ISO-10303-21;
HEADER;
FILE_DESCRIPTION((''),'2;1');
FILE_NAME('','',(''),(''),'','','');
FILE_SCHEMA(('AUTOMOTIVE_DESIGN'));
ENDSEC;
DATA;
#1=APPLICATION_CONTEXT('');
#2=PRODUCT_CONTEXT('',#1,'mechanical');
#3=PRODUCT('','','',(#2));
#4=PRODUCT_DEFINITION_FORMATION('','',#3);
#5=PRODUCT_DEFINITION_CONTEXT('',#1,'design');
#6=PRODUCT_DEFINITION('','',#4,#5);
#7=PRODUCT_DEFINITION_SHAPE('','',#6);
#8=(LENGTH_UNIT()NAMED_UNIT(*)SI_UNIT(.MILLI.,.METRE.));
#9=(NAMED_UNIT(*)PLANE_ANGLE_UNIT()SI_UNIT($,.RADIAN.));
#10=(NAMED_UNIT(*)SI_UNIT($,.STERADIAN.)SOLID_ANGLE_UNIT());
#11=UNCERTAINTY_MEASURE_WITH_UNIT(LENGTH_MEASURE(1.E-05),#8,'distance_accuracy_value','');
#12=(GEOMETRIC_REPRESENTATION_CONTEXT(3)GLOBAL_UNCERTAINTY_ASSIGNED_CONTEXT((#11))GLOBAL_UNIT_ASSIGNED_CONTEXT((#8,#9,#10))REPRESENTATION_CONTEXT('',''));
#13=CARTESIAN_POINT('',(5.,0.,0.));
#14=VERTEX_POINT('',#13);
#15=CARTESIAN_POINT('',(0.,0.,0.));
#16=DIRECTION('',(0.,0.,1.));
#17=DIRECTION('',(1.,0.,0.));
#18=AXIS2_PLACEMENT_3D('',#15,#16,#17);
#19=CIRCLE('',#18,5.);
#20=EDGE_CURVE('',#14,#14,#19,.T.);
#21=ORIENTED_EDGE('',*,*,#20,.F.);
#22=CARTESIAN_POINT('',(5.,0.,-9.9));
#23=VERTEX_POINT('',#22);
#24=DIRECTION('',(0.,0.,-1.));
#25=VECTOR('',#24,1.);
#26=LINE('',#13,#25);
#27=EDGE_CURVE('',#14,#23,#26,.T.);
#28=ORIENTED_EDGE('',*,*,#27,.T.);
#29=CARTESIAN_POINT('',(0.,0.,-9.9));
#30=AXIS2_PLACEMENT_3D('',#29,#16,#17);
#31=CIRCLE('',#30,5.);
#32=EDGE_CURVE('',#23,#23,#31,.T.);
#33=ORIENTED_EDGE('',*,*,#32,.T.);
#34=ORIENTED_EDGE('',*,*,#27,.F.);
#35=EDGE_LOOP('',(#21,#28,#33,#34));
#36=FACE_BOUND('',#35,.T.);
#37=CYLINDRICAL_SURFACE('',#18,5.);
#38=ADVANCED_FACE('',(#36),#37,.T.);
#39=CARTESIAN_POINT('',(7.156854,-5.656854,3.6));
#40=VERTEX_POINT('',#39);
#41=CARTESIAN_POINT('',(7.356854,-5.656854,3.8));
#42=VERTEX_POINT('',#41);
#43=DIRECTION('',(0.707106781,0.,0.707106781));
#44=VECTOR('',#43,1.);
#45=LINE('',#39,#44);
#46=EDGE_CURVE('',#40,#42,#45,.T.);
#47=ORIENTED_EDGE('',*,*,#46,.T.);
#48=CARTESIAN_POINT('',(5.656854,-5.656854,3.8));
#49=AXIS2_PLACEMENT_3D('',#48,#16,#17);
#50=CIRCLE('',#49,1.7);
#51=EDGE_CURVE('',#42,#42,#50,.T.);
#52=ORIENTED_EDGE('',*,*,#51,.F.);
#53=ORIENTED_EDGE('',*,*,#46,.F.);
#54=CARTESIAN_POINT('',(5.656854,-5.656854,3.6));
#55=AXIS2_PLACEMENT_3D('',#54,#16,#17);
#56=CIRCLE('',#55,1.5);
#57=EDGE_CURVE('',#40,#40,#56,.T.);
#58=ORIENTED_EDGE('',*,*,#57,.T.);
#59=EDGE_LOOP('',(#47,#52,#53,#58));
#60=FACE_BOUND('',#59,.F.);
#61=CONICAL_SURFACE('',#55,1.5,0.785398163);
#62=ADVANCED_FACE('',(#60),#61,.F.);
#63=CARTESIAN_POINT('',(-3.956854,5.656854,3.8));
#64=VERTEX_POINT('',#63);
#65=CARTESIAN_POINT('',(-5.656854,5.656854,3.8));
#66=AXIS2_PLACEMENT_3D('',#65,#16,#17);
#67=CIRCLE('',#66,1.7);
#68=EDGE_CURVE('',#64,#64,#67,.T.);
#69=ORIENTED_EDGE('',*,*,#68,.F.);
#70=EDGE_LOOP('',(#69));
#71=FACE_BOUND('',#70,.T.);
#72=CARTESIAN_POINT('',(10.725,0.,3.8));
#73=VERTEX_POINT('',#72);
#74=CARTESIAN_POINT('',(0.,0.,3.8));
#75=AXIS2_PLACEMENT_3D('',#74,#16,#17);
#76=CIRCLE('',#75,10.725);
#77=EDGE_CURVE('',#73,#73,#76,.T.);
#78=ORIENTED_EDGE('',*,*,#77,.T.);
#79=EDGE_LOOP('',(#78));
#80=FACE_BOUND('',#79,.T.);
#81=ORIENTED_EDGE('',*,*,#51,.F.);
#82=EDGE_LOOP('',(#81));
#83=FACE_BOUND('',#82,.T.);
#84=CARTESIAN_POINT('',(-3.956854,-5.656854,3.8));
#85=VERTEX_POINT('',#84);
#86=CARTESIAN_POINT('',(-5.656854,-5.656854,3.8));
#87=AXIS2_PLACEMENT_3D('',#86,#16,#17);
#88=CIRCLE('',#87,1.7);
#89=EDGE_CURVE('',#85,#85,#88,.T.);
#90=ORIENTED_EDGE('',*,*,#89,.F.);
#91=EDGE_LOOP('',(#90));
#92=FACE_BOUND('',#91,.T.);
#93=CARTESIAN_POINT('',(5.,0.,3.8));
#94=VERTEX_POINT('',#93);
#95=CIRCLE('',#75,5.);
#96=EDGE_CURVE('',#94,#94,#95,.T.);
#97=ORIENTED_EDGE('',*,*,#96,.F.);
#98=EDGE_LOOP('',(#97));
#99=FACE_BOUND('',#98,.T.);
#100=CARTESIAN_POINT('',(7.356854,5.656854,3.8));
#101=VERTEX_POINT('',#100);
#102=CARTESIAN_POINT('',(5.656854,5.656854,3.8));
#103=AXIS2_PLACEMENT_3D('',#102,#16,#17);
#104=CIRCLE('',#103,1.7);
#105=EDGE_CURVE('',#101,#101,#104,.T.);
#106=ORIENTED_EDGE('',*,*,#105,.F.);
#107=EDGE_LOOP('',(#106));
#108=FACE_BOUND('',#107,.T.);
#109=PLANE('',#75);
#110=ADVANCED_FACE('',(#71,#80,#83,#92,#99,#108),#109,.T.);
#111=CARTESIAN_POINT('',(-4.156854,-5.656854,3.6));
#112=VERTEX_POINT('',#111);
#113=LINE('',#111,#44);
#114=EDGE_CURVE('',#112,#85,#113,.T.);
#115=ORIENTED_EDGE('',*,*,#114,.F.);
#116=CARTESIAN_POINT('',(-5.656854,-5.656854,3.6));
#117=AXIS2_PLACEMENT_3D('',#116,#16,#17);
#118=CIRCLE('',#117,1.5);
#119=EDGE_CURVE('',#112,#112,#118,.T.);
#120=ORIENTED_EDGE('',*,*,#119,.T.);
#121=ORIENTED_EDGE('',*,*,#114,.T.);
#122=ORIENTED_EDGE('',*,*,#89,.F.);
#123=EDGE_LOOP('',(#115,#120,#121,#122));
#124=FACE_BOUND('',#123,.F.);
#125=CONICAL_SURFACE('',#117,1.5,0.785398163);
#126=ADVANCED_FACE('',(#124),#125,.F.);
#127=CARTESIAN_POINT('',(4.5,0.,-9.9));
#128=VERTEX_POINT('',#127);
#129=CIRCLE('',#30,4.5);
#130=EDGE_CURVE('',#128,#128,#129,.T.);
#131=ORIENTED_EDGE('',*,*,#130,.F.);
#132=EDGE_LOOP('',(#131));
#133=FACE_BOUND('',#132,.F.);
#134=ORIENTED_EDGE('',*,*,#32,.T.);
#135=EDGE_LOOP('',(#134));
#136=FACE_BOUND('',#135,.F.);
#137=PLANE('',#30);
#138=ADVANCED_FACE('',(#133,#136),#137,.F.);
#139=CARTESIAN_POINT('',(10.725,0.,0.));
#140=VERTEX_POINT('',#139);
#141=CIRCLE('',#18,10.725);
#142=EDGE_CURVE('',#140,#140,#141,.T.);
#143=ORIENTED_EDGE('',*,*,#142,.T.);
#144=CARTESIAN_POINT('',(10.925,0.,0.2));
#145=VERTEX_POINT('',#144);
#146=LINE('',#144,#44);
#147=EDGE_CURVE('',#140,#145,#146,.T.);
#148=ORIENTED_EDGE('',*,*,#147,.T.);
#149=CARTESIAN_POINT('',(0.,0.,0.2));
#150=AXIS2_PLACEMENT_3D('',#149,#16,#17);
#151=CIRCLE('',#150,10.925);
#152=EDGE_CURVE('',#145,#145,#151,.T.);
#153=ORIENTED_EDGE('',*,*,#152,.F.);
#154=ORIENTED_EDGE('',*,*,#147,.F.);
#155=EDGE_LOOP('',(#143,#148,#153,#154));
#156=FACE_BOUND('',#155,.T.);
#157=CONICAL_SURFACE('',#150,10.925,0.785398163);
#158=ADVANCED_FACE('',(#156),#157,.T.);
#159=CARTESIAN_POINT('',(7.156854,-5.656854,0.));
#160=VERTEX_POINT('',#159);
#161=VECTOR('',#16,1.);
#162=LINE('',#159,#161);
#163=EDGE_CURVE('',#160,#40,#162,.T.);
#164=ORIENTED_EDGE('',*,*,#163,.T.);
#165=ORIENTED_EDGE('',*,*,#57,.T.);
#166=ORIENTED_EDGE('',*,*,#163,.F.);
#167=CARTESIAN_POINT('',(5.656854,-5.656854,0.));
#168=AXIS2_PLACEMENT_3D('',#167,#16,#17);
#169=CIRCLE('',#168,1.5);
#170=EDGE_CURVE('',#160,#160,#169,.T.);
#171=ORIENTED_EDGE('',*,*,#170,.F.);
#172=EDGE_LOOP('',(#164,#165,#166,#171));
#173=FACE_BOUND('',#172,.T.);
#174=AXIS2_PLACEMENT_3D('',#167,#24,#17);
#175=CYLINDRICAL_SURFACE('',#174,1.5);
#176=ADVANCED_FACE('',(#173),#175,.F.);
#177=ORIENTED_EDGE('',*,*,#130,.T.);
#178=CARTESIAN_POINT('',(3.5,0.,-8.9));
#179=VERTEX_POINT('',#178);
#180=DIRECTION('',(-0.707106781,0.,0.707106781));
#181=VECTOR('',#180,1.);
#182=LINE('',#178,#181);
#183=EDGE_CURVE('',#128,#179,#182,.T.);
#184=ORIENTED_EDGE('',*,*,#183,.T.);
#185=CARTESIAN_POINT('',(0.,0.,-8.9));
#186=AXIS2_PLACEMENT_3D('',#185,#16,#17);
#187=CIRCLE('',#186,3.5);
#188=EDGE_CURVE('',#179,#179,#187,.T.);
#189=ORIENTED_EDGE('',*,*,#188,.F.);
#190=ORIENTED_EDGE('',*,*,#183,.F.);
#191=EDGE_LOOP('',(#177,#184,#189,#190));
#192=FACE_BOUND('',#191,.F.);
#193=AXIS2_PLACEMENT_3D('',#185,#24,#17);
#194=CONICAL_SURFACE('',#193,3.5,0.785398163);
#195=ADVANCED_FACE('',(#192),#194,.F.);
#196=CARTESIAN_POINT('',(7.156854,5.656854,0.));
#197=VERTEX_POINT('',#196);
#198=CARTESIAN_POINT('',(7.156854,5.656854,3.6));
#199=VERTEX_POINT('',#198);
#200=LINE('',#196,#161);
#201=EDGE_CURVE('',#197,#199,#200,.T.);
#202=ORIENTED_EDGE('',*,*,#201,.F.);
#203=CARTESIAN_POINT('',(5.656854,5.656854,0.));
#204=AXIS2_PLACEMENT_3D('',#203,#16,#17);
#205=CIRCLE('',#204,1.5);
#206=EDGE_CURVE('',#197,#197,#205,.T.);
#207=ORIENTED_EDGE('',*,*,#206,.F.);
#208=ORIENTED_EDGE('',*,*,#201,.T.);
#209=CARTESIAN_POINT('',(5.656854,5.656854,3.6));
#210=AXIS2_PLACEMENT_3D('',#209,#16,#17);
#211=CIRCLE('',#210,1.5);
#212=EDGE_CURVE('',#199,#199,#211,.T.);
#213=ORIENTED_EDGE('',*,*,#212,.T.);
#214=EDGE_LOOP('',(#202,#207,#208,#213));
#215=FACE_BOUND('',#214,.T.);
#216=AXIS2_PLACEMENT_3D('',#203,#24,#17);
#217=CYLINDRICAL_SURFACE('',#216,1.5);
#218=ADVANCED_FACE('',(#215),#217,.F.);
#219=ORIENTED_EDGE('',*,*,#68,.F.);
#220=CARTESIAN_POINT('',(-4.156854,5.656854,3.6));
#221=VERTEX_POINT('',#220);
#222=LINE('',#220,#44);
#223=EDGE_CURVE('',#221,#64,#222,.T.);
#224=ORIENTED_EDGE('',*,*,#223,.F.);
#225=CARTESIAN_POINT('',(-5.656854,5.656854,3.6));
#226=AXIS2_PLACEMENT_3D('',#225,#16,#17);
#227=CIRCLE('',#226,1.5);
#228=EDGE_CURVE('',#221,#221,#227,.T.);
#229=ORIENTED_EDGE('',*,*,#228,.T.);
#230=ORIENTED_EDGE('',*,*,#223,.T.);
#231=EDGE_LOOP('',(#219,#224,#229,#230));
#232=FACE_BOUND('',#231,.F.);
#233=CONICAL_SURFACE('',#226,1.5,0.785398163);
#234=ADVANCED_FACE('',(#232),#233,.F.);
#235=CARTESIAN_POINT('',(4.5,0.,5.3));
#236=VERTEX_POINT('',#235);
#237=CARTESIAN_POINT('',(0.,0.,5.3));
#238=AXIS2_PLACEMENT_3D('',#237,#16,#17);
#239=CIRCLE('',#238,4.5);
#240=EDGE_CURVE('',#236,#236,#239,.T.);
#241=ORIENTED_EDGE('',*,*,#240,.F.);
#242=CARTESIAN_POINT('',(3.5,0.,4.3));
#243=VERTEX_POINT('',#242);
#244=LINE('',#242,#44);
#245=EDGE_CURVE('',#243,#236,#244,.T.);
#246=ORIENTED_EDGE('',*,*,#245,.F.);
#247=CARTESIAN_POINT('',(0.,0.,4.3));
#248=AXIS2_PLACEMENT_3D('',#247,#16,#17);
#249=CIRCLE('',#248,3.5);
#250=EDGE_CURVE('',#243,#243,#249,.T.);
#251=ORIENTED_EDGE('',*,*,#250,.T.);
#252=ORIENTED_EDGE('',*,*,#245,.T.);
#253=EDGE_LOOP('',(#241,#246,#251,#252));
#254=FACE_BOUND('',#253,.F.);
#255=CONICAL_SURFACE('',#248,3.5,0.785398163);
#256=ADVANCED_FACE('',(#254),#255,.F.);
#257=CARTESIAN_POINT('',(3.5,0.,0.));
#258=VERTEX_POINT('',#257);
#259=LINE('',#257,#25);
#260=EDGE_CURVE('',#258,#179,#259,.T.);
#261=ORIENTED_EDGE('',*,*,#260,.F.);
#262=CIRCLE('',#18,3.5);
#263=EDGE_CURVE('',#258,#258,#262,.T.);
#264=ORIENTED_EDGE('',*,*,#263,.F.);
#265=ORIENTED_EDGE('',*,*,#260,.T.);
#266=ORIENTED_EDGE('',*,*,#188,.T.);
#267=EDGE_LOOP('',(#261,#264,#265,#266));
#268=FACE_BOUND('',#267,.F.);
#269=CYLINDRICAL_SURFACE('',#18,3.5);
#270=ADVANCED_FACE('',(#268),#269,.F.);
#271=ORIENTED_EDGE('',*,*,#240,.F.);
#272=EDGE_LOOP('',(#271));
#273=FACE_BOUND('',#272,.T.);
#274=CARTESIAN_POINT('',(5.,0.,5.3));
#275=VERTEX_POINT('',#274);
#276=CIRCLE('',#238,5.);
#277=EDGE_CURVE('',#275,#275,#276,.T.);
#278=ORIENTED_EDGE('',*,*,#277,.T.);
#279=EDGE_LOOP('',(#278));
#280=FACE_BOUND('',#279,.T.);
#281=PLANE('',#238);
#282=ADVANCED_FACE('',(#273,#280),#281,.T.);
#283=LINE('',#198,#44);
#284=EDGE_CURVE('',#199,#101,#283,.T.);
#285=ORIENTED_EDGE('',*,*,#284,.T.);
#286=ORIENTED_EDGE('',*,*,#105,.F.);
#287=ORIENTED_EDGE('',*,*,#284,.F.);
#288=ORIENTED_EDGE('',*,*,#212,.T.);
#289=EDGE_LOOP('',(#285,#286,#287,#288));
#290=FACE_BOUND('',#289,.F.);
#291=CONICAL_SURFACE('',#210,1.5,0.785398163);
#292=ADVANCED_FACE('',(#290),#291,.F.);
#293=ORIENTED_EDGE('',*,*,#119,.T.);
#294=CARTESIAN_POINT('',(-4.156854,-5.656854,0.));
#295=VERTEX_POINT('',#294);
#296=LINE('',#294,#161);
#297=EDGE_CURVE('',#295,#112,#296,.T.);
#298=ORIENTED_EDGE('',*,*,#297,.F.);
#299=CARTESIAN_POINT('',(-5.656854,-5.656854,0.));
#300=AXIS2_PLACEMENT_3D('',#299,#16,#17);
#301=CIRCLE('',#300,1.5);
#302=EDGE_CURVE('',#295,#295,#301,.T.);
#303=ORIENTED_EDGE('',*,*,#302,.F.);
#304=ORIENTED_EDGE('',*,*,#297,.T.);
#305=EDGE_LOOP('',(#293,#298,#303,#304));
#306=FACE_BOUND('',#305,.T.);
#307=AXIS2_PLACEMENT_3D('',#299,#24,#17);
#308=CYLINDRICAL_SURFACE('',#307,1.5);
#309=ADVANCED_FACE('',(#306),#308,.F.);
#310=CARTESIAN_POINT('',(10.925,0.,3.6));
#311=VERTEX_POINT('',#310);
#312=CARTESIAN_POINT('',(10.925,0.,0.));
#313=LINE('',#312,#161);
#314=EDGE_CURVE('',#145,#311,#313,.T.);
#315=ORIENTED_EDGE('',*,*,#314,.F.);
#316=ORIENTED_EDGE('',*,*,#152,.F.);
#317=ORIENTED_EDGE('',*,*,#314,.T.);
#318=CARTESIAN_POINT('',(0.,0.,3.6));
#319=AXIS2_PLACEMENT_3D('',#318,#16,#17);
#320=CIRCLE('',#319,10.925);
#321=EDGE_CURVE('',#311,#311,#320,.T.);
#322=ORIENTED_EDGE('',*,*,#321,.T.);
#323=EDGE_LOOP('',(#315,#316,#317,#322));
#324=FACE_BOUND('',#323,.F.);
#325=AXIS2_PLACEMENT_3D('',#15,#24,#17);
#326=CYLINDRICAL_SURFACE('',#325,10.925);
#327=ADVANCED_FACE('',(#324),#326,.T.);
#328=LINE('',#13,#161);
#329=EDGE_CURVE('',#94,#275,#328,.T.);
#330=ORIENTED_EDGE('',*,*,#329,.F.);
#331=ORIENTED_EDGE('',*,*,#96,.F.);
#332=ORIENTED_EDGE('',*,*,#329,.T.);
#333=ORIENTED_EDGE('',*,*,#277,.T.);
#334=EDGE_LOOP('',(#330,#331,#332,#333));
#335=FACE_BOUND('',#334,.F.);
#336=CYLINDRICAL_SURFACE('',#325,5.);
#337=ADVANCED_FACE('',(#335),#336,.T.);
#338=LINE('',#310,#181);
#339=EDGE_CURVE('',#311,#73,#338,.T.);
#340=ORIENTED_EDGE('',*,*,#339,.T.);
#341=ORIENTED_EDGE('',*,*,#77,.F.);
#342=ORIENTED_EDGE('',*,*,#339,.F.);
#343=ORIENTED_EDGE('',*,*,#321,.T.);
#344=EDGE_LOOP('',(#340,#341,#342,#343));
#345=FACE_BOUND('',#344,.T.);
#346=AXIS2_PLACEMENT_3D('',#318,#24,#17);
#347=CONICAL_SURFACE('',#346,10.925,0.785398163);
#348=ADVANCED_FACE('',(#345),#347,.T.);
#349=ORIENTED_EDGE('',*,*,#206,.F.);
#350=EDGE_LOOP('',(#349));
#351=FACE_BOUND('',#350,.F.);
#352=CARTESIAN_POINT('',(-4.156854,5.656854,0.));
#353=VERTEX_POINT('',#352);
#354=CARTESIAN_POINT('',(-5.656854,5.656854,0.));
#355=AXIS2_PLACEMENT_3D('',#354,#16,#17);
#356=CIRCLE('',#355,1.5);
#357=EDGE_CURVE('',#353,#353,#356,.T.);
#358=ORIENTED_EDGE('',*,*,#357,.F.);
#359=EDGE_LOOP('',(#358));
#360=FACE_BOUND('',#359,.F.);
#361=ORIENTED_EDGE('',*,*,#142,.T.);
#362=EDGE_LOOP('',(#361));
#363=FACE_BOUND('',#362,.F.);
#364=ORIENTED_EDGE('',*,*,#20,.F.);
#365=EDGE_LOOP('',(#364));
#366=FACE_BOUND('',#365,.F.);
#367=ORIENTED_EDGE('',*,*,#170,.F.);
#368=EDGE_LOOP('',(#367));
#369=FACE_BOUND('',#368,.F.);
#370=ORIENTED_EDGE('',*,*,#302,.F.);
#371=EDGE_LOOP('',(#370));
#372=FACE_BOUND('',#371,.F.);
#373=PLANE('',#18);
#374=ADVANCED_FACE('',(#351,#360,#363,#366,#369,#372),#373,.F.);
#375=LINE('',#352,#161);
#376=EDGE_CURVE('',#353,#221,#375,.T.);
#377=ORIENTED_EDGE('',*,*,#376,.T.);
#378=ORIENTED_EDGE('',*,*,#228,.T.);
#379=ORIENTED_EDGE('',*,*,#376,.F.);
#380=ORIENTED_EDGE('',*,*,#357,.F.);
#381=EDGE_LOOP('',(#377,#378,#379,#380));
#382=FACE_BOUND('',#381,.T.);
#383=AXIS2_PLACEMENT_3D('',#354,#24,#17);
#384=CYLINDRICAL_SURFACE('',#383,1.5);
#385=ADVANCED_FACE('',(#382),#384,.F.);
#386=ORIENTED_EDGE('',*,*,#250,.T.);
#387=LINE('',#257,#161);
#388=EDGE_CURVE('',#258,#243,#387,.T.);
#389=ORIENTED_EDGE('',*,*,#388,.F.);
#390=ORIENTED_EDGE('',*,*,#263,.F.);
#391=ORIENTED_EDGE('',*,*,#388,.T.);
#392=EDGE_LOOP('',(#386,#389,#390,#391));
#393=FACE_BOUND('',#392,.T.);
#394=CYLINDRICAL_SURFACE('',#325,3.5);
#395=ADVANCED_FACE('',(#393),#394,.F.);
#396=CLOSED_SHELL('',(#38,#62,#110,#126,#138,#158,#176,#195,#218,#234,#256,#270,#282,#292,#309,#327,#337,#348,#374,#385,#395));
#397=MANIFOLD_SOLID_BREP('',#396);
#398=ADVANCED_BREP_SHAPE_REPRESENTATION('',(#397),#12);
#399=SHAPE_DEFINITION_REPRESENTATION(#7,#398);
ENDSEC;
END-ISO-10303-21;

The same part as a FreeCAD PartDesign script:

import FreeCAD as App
import Part
import Sketcher

V = App.Vector


def edges_at(feature, points):
    """Names of the edges that pass closest to the given points."""
    edges = feature.Shape.Edges
    near = lambda p: min(range(len(edges)), key=lambda i: edges[i].distToShape(Part.Vertex(*p))[0])
    return sorted({f"Edge{near(p) + 1}" for p in points})

doc = App.newDocument("Part")
body = doc.addObject("PartDesign::Body", "Body")

# Sketch on XY plane
sketch1 = body.newObject("Sketcher::SketchObject", "Sketch")
sketch1.AttachmentSupport = (doc.getObject("XY_Plane"), [""])
sketch1.MapMode = "FlatFace"
sketch1.addGeometry(Part.Circle(V(0, 0, 0), V(0, 0, 1), 10.9), False)
sketch1.addGeometry(Part.Circle(V(-5.7, -5.7, 0), V(0, 0, 1), 1.5), False)
sketch1.addGeometry(Part.Circle(V(5.7, -5.7, 0), V(0, 0, 1), 1.5), False)
sketch1.addGeometry(Part.Circle(V(-5.7, 5.7, 0), V(0, 0, 1), 1.5), False)
sketch1.addGeometry(Part.Circle(V(0, 0, 0), V(0, 0, 1), 5), False)
sketch1.addGeometry(Part.Circle(V(5.7, 5.7, 0), V(0, 0, 1), 1.5), False)
sketch1.addConstraint(Sketcher.Constraint("Coincident", 0, 3, -1, 1))
sketch1.addConstraint(Sketcher.Constraint("Coincident", 4, 3, -1, 1))
sketch1.addConstraint(Sketcher.Constraint("Equal", 1, 2))
sketch1.addConstraint(Sketcher.Constraint("Equal", 2, 3))
sketch1.addConstraint(Sketcher.Constraint("Equal", 3, 5))
sketch1.addConstraint(Sketcher.Constraint("Symmetric", 2, 3, 3, 3, -1, 1))
sketch1.addConstraint(Sketcher.Constraint("Symmetric", 1, 3, 5, 3, -1, 1))
sketch1.addConstraint(Sketcher.Constraint("Symmetric", 1, 3, 2, 3, -2))
sketch1.addConstraint(Sketcher.Constraint("Diameter", 1, 3.0))
sketch1.addConstraint(Sketcher.Constraint("Diameter", 4, 10.0))
sketch1.addConstraint(Sketcher.Constraint("Diameter", 0, 21.85))
sketch1.addConstraint(Sketcher.Constraint("DistanceX", 1, 3, -1, 1, 5.656854))
sketch1.addConstraint(Sketcher.Constraint("DistanceY", 1, 3, -1, 1, 5.656854))
pad1 = body.newObject("PartDesign::Pad", "Pad")
pad1.Profile = sketch1
pad1.Length = 3.8

# Sketch on XY plane
sketch2 = body.newObject("Sketcher::SketchObject", "Sketch001")
sketch2.AttachmentSupport = (doc.getObject("XY_Plane"), [""])
sketch2.MapMode = "FlatFace"
sketch2.addGeometry(Part.Circle(V(0, 0, 0), V(0, 0, 1), 5), False)
sketch2.addGeometry(Part.Circle(V(0, 0, 0), V(0, 0, 1), 3.5), False)
sketch2.addConstraint(Sketcher.Constraint("Coincident", 0, 3, -1, 1))
sketch2.addConstraint(Sketcher.Constraint("Coincident", 1, 3, -1, 1))
sketch2.addConstraint(Sketcher.Constraint("Diameter", 0, 10.0))
sketch2.addConstraint(Sketcher.Constraint("Diameter", 1, 7.0))
pad2 = body.newObject("PartDesign::Pad", "Pad001")
pad2.Profile = sketch2
pad2.Length = 5.3

# Sketch on XY plane
sketch3 = body.newObject("Sketcher::SketchObject", "Sketch002")
sketch3.AttachmentSupport = (doc.getObject("XY_Plane"), [""])
sketch3.MapMode = "FlatFace"
sketch3.addGeometry(Part.Circle(V(0, 0, 0), V(0, 0, 1), 5), False)
sketch3.addGeometry(Part.Circle(V(0, 0, 0), V(0, 0, 1), 3.5), False)
sketch3.addConstraint(Sketcher.Constraint("Coincident", 0, 3, -1, 1))
sketch3.addConstraint(Sketcher.Constraint("Coincident", 1, 3, -1, 1))
sketch3.addConstraint(Sketcher.Constraint("Diameter", 0, 10.0))
sketch3.addConstraint(Sketcher.Constraint("Diameter", 1, 7.0))
pad3 = body.newObject("PartDesign::Pad", "Pad002")
pad3.Profile = sketch3
pad3.Length = 9.9
pad3.Reversed = True
doc.recompute()

chamfer = body.newObject("PartDesign::Chamfer", "Chamfer")
chamfer.Base = (pad3, edges_at(pad3, [(-3.5, 0, 5.3), (-3.5, 0, -9.9)]))
chamfer.Size = 1
doc.recompute()

chamfer2 = body.newObject("PartDesign::Chamfer", "Chamfer001")
chamfer2.Base = (chamfer, edges_at(chamfer, [
    (-7.157, 5.657, 3.8),
    (-7.157, -5.657, 3.8),
    (4.157, -5.657, 3.8),
    (4.157, 5.657, 3.8),
    (-10.925, 0, 3.8),
    (-10.925, 0, 0),
]))
chamfer2.Size = 0.2

doc.recompute()
